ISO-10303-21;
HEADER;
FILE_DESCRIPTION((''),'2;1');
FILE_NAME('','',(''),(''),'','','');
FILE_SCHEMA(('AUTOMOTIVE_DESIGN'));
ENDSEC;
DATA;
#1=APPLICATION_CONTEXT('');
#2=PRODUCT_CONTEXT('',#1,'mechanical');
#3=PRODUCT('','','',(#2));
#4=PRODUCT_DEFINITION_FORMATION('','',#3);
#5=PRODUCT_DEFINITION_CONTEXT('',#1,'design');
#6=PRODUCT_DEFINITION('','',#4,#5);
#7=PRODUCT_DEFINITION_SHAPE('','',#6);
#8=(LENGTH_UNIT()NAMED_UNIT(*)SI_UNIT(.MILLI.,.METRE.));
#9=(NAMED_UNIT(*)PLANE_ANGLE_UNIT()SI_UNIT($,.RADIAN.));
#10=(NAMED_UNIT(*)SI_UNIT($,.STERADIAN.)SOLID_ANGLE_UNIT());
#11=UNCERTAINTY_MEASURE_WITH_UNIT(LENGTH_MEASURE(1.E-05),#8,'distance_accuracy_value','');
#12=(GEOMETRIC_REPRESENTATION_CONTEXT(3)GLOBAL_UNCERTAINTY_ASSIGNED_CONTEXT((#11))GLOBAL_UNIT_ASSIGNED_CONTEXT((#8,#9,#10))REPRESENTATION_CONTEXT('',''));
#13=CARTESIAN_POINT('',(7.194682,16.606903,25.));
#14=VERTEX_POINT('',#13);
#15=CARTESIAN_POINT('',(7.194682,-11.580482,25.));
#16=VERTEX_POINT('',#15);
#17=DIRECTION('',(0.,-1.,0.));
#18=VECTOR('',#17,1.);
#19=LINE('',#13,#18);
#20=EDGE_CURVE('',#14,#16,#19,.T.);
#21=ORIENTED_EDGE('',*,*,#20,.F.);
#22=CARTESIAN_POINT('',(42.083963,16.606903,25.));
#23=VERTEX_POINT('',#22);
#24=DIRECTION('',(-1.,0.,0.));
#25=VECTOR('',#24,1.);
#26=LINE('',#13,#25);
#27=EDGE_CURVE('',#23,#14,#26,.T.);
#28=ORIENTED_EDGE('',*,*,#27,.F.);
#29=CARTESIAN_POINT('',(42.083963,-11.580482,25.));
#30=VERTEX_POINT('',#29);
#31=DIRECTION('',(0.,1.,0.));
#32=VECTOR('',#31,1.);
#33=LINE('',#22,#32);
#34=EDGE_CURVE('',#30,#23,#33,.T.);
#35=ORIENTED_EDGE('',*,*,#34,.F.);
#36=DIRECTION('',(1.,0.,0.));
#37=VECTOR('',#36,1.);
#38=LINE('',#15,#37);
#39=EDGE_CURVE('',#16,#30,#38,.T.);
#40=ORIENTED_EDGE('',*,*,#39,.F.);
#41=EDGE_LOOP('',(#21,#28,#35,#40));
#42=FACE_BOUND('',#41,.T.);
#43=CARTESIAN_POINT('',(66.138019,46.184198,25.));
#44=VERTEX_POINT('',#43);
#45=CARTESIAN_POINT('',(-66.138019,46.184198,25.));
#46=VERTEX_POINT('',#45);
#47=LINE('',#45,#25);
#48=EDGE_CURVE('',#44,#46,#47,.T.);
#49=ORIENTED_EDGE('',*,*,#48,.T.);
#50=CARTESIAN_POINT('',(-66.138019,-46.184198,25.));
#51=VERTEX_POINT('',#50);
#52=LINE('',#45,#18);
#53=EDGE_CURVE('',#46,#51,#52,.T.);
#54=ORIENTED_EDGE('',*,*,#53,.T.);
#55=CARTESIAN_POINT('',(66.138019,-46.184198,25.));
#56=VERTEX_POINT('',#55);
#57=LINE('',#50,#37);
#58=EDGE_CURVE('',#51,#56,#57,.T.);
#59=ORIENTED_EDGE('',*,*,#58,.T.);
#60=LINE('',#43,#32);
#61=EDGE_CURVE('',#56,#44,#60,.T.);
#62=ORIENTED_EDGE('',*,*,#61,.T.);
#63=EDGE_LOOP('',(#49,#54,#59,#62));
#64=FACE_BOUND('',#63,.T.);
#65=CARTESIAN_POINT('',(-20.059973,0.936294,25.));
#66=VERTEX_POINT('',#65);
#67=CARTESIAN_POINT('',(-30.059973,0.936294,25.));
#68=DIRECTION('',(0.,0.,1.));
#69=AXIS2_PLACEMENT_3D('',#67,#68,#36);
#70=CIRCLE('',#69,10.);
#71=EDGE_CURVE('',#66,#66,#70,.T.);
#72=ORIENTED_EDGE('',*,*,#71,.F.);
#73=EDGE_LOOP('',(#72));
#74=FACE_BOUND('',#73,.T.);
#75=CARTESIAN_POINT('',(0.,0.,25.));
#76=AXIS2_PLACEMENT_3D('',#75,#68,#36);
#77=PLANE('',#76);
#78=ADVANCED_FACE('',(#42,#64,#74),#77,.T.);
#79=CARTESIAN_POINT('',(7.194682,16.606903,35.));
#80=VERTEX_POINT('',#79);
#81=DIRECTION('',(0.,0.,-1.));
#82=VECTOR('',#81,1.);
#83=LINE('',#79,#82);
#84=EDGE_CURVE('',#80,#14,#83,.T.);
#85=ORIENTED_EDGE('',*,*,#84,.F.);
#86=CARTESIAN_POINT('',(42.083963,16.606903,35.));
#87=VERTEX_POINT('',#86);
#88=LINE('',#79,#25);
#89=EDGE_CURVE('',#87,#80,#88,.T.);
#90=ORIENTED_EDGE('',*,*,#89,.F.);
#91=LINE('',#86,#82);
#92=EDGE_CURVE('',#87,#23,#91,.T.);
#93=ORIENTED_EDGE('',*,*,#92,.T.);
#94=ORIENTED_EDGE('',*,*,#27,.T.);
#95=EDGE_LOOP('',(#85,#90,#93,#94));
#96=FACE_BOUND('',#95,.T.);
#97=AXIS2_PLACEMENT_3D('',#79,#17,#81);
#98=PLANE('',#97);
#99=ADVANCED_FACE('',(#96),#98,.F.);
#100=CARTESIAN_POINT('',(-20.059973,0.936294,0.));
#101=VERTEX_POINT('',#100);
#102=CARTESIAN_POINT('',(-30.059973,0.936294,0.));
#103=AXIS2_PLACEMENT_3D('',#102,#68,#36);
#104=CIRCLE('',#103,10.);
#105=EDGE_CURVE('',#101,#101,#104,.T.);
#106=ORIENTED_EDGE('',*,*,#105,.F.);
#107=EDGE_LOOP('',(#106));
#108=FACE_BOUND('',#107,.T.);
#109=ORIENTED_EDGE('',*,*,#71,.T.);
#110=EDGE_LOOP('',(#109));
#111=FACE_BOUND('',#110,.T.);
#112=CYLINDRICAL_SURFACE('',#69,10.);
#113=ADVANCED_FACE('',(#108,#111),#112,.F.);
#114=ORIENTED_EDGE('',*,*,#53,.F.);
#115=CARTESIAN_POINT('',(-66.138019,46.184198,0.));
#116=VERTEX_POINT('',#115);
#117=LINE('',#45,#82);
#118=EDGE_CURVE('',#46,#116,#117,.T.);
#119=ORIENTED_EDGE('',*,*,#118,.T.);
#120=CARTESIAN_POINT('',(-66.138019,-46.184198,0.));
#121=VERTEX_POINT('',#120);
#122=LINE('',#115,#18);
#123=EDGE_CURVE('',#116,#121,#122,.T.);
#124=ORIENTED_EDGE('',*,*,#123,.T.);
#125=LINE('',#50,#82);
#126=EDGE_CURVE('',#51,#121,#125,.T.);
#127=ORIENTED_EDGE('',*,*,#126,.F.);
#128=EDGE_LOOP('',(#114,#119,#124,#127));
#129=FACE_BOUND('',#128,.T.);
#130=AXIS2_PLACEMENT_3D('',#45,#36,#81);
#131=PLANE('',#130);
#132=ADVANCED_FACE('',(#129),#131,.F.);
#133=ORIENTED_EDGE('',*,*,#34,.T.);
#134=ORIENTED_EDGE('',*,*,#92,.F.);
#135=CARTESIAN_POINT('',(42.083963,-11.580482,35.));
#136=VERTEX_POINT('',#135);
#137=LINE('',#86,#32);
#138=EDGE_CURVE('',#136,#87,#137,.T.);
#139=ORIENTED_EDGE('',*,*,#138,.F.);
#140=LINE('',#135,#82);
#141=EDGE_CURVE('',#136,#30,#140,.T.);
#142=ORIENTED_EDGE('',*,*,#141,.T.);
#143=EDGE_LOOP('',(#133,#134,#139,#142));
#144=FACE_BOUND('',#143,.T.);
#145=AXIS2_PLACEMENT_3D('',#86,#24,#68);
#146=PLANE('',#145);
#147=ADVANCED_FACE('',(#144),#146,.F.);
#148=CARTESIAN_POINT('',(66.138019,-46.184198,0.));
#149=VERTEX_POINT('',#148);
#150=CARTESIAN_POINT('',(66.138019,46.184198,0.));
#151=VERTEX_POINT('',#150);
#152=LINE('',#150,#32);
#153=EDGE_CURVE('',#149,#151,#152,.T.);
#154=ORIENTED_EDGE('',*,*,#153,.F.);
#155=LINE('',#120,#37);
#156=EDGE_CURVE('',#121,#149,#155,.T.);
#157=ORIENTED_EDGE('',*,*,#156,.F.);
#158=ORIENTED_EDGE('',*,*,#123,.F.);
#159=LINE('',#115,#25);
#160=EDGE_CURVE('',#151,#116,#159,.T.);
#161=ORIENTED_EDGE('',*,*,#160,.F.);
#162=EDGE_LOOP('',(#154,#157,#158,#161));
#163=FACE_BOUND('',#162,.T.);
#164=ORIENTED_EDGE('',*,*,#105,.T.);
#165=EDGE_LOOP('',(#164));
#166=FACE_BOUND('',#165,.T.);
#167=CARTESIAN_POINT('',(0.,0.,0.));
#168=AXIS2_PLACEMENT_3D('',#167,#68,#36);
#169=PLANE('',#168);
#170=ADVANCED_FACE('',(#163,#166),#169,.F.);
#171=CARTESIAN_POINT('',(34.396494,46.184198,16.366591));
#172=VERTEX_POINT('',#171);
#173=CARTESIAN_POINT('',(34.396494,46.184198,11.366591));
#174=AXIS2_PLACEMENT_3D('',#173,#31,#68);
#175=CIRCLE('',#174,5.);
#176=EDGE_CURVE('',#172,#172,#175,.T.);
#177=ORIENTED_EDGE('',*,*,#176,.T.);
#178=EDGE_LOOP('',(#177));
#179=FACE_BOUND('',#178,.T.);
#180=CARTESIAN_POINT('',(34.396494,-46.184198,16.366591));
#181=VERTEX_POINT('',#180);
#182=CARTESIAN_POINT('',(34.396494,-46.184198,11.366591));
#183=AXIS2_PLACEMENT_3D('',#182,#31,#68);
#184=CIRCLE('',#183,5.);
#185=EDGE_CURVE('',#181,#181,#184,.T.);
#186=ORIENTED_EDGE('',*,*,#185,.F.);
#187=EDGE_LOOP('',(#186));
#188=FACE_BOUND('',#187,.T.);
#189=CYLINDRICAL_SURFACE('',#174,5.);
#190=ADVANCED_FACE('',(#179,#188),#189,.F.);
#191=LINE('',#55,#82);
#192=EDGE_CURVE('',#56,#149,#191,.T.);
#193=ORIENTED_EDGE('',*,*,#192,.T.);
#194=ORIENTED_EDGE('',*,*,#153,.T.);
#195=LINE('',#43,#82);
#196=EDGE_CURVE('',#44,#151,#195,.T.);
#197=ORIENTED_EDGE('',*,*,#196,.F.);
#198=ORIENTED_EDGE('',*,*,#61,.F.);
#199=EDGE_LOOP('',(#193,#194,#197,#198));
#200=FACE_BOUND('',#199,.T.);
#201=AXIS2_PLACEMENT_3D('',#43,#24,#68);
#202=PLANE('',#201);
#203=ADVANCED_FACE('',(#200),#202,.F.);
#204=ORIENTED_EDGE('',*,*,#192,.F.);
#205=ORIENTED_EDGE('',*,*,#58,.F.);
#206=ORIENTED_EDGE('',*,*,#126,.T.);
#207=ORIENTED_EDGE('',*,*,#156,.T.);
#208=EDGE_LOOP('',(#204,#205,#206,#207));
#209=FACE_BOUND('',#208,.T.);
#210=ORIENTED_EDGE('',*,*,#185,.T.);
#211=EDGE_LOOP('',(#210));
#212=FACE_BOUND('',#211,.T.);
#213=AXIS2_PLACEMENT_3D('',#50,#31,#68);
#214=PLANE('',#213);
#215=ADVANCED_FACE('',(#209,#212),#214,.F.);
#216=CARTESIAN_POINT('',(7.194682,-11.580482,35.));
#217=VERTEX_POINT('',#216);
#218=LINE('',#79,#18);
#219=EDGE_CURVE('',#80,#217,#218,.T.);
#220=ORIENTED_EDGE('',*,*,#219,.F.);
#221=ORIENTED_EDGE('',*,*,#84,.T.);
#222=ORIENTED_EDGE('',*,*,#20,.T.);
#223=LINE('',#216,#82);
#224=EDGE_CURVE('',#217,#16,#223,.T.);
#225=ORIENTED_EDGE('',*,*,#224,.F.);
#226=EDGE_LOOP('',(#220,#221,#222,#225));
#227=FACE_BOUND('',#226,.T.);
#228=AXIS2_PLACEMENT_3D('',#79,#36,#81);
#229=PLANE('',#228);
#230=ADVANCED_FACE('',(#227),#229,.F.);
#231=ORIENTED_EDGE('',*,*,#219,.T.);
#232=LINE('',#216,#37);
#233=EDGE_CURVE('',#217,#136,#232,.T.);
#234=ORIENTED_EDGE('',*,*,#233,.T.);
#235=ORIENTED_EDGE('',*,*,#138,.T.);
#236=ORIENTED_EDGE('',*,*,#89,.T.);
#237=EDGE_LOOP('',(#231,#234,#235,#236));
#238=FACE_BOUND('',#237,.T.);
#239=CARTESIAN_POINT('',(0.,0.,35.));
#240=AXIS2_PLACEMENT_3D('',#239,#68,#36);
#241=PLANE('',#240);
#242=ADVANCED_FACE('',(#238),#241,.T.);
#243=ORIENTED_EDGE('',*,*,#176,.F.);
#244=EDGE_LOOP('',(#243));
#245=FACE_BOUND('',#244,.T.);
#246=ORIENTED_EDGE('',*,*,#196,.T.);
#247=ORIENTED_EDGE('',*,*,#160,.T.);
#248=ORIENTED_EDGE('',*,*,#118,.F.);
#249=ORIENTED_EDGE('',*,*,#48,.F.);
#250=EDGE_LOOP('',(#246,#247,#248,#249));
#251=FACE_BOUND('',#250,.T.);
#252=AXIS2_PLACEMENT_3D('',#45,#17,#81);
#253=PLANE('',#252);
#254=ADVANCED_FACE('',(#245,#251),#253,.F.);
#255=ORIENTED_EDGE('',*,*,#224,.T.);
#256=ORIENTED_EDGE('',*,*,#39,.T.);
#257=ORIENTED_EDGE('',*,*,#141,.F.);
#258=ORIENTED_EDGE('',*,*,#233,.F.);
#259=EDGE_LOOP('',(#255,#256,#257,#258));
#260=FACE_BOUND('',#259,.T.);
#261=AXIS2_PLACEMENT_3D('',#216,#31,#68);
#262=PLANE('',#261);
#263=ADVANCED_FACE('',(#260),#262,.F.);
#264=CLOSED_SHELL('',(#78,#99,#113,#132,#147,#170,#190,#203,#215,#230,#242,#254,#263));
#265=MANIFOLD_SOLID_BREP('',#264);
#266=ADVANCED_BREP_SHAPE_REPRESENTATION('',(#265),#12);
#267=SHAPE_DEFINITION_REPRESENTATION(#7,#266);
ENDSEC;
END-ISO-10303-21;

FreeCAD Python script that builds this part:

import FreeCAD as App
import Part
import Sketcher
from FreeCAD import Vector
Q = App.Units.Quantity


def add_polygon(sketch, points):
    """Adds a closed chain of lines whose ends are joined by coincident constraints."""
    first, n = sketch.GeometryCount, len(points)
    for a, b in zip(points, points[1:] + points[:1]):
        sketch.addGeometry(Part.LineSegment(App.Vector(*a, 0), App.Vector(*b, 0)), False)
    for i in range(n):
        sketch.addConstraint(Sketcher.Constraint("Coincident", first + i, 2, first + (i + 1) % n, 1))

doc = App.newDocument("Part")
body = doc.addObject("PartDesign::Body", "Body")

# Sketch on XY plane
sketch1 = body.newObject("Sketcher::SketchObject", "Sketch")
sketch1.AttachmentSupport = (doc.getObject("XY_Plane"), [""])
sketch1.MapMode = "FlatFace"
add_polygon(sketch1, [(-66, 46), (-66, -46), (66, -46), (66, 46)])  # lines 0-3
sketch1.addConstraint([
    Sketcher.Constraint("Vertical", 0),
    Sketcher.Constraint("Horizontal", 1),
    Sketcher.Constraint("Vertical", 2),
    Sketcher.Constraint("Horizontal", 3),
    Sketcher.Constraint("Symmetric", 0, 2, 2, 2, -1, 1),
    Sketcher.Constraint("DistanceX", 1, 1, 1, 2, Q("132.276039 mm")),
    Sketcher.Constraint("DistanceY", 0, 2, 0, 1, Q("92.368396 mm")),
])
pad1 = body.newObject("PartDesign::Pad", "Pad")
pad1.Profile = sketch1
pad1.Length = 25

# Sketch on XY plane
sketch2 = body.newObject("Sketcher::SketchObject", "Sketch001")
sketch2.AttachmentSupport = (doc.getObject("XY_Plane"), [""])
sketch2.MapMode = "FlatFace"
sketch2.AttachmentOffset = App.Placement(Vector(0, 0, 25), App.Rotation())
sketch2.addGeometry(Part.Circle(Vector(-30, 1, 0), Vector(0, 0, 1), 10), False)
sketch2.addConstraint([
    Sketcher.Constraint("Diameter", 0, Q("20 mm")),
    Sketcher.Constraint("DistanceX", 0, 3, -1, 1, Q("30.059973 mm")),
    Sketcher.Constraint("DistanceY", -1, 1, 0, 3, Q("0.936294 mm")),
])
doc.recompute()
hole = body.newObject("PartDesign::Hole", "Hole")
hole.Profile = sketch2
hole.ThreadType = "None"
hole.Diameter = 20
hole.DepthType = "ThroughAll"

# Sketch on XZ plane
sketch3 = body.newObject("Sketcher::SketchObject", "Sketch002")
sketch3.AttachmentSupport = (doc.getObject("XZ_Plane"), [""])
sketch3.MapMode = "FlatFace"
sketch3.AttachmentOffset = App.Placement(Vector(0, 0, -46.184198), App.Rotation())
sketch3.addGeometry(Part.Circle(Vector(34, 11, 0), Vector(0, 0, 1), 5), False)
sketch3.addConstraint([
    Sketcher.Constraint("Diameter", 0, Q("10 mm")),
    Sketcher.Constraint("DistanceY", -1, 1, 0, 3, Q("11.366591 mm")),
    Sketcher.Constraint("DistanceX", -1, 1, 0, 3, Q("34.396494 mm")),
])
doc.recompute()
hole2 = body.newObject("PartDesign::Hole", "Hole001")
hole2.Profile = sketch3
hole2.ThreadType = "None"
hole2.Diameter = 10
hole2.DepthType = "ThroughAll"
hole2.Reversed = True

# Sketch on XY plane
sketch4 = body.newObject("Sketcher::SketchObject", "Sketch003")
sketch4.AttachmentSupport = (doc.getObject("XY_Plane"), [""])
sketch4.MapMode = "FlatFace"
sketch4.AttachmentOffset = App.Placement(Vector(0, 0, 25), App.Rotation())
add_polygon(sketch4, [(7, 17), (7, -12), (42, -12), (42, 17)])  # lines 0-3
sketch4.addConstraint([
    Sketcher.Constraint("Vertical", 0),
    Sketcher.Constraint("Horizontal", 1),
    Sketcher.Constraint("Vertical", 2),
    Sketcher.Constraint("Horizontal", 3),
    Sketcher.Constraint("DistanceX", 1, 1, 1, 2, Q("34.88928 mm")),
    Sketcher.Constraint("DistanceY", 0, 2, 0, 1, Q("28.187385 mm")),
    Sketcher.Constraint("DistanceY", 0, 2, -1, 1, Q("11.580482 mm")),
    Sketcher.Constraint("DistanceX", -1, 1, 0, 2, Q("7.194682 mm")),
])
pad2 = body.newObject("PartDesign::Pad", "Pad001")
pad2.Profile = sketch4
pad2.Length = 10

doc.recompute()
